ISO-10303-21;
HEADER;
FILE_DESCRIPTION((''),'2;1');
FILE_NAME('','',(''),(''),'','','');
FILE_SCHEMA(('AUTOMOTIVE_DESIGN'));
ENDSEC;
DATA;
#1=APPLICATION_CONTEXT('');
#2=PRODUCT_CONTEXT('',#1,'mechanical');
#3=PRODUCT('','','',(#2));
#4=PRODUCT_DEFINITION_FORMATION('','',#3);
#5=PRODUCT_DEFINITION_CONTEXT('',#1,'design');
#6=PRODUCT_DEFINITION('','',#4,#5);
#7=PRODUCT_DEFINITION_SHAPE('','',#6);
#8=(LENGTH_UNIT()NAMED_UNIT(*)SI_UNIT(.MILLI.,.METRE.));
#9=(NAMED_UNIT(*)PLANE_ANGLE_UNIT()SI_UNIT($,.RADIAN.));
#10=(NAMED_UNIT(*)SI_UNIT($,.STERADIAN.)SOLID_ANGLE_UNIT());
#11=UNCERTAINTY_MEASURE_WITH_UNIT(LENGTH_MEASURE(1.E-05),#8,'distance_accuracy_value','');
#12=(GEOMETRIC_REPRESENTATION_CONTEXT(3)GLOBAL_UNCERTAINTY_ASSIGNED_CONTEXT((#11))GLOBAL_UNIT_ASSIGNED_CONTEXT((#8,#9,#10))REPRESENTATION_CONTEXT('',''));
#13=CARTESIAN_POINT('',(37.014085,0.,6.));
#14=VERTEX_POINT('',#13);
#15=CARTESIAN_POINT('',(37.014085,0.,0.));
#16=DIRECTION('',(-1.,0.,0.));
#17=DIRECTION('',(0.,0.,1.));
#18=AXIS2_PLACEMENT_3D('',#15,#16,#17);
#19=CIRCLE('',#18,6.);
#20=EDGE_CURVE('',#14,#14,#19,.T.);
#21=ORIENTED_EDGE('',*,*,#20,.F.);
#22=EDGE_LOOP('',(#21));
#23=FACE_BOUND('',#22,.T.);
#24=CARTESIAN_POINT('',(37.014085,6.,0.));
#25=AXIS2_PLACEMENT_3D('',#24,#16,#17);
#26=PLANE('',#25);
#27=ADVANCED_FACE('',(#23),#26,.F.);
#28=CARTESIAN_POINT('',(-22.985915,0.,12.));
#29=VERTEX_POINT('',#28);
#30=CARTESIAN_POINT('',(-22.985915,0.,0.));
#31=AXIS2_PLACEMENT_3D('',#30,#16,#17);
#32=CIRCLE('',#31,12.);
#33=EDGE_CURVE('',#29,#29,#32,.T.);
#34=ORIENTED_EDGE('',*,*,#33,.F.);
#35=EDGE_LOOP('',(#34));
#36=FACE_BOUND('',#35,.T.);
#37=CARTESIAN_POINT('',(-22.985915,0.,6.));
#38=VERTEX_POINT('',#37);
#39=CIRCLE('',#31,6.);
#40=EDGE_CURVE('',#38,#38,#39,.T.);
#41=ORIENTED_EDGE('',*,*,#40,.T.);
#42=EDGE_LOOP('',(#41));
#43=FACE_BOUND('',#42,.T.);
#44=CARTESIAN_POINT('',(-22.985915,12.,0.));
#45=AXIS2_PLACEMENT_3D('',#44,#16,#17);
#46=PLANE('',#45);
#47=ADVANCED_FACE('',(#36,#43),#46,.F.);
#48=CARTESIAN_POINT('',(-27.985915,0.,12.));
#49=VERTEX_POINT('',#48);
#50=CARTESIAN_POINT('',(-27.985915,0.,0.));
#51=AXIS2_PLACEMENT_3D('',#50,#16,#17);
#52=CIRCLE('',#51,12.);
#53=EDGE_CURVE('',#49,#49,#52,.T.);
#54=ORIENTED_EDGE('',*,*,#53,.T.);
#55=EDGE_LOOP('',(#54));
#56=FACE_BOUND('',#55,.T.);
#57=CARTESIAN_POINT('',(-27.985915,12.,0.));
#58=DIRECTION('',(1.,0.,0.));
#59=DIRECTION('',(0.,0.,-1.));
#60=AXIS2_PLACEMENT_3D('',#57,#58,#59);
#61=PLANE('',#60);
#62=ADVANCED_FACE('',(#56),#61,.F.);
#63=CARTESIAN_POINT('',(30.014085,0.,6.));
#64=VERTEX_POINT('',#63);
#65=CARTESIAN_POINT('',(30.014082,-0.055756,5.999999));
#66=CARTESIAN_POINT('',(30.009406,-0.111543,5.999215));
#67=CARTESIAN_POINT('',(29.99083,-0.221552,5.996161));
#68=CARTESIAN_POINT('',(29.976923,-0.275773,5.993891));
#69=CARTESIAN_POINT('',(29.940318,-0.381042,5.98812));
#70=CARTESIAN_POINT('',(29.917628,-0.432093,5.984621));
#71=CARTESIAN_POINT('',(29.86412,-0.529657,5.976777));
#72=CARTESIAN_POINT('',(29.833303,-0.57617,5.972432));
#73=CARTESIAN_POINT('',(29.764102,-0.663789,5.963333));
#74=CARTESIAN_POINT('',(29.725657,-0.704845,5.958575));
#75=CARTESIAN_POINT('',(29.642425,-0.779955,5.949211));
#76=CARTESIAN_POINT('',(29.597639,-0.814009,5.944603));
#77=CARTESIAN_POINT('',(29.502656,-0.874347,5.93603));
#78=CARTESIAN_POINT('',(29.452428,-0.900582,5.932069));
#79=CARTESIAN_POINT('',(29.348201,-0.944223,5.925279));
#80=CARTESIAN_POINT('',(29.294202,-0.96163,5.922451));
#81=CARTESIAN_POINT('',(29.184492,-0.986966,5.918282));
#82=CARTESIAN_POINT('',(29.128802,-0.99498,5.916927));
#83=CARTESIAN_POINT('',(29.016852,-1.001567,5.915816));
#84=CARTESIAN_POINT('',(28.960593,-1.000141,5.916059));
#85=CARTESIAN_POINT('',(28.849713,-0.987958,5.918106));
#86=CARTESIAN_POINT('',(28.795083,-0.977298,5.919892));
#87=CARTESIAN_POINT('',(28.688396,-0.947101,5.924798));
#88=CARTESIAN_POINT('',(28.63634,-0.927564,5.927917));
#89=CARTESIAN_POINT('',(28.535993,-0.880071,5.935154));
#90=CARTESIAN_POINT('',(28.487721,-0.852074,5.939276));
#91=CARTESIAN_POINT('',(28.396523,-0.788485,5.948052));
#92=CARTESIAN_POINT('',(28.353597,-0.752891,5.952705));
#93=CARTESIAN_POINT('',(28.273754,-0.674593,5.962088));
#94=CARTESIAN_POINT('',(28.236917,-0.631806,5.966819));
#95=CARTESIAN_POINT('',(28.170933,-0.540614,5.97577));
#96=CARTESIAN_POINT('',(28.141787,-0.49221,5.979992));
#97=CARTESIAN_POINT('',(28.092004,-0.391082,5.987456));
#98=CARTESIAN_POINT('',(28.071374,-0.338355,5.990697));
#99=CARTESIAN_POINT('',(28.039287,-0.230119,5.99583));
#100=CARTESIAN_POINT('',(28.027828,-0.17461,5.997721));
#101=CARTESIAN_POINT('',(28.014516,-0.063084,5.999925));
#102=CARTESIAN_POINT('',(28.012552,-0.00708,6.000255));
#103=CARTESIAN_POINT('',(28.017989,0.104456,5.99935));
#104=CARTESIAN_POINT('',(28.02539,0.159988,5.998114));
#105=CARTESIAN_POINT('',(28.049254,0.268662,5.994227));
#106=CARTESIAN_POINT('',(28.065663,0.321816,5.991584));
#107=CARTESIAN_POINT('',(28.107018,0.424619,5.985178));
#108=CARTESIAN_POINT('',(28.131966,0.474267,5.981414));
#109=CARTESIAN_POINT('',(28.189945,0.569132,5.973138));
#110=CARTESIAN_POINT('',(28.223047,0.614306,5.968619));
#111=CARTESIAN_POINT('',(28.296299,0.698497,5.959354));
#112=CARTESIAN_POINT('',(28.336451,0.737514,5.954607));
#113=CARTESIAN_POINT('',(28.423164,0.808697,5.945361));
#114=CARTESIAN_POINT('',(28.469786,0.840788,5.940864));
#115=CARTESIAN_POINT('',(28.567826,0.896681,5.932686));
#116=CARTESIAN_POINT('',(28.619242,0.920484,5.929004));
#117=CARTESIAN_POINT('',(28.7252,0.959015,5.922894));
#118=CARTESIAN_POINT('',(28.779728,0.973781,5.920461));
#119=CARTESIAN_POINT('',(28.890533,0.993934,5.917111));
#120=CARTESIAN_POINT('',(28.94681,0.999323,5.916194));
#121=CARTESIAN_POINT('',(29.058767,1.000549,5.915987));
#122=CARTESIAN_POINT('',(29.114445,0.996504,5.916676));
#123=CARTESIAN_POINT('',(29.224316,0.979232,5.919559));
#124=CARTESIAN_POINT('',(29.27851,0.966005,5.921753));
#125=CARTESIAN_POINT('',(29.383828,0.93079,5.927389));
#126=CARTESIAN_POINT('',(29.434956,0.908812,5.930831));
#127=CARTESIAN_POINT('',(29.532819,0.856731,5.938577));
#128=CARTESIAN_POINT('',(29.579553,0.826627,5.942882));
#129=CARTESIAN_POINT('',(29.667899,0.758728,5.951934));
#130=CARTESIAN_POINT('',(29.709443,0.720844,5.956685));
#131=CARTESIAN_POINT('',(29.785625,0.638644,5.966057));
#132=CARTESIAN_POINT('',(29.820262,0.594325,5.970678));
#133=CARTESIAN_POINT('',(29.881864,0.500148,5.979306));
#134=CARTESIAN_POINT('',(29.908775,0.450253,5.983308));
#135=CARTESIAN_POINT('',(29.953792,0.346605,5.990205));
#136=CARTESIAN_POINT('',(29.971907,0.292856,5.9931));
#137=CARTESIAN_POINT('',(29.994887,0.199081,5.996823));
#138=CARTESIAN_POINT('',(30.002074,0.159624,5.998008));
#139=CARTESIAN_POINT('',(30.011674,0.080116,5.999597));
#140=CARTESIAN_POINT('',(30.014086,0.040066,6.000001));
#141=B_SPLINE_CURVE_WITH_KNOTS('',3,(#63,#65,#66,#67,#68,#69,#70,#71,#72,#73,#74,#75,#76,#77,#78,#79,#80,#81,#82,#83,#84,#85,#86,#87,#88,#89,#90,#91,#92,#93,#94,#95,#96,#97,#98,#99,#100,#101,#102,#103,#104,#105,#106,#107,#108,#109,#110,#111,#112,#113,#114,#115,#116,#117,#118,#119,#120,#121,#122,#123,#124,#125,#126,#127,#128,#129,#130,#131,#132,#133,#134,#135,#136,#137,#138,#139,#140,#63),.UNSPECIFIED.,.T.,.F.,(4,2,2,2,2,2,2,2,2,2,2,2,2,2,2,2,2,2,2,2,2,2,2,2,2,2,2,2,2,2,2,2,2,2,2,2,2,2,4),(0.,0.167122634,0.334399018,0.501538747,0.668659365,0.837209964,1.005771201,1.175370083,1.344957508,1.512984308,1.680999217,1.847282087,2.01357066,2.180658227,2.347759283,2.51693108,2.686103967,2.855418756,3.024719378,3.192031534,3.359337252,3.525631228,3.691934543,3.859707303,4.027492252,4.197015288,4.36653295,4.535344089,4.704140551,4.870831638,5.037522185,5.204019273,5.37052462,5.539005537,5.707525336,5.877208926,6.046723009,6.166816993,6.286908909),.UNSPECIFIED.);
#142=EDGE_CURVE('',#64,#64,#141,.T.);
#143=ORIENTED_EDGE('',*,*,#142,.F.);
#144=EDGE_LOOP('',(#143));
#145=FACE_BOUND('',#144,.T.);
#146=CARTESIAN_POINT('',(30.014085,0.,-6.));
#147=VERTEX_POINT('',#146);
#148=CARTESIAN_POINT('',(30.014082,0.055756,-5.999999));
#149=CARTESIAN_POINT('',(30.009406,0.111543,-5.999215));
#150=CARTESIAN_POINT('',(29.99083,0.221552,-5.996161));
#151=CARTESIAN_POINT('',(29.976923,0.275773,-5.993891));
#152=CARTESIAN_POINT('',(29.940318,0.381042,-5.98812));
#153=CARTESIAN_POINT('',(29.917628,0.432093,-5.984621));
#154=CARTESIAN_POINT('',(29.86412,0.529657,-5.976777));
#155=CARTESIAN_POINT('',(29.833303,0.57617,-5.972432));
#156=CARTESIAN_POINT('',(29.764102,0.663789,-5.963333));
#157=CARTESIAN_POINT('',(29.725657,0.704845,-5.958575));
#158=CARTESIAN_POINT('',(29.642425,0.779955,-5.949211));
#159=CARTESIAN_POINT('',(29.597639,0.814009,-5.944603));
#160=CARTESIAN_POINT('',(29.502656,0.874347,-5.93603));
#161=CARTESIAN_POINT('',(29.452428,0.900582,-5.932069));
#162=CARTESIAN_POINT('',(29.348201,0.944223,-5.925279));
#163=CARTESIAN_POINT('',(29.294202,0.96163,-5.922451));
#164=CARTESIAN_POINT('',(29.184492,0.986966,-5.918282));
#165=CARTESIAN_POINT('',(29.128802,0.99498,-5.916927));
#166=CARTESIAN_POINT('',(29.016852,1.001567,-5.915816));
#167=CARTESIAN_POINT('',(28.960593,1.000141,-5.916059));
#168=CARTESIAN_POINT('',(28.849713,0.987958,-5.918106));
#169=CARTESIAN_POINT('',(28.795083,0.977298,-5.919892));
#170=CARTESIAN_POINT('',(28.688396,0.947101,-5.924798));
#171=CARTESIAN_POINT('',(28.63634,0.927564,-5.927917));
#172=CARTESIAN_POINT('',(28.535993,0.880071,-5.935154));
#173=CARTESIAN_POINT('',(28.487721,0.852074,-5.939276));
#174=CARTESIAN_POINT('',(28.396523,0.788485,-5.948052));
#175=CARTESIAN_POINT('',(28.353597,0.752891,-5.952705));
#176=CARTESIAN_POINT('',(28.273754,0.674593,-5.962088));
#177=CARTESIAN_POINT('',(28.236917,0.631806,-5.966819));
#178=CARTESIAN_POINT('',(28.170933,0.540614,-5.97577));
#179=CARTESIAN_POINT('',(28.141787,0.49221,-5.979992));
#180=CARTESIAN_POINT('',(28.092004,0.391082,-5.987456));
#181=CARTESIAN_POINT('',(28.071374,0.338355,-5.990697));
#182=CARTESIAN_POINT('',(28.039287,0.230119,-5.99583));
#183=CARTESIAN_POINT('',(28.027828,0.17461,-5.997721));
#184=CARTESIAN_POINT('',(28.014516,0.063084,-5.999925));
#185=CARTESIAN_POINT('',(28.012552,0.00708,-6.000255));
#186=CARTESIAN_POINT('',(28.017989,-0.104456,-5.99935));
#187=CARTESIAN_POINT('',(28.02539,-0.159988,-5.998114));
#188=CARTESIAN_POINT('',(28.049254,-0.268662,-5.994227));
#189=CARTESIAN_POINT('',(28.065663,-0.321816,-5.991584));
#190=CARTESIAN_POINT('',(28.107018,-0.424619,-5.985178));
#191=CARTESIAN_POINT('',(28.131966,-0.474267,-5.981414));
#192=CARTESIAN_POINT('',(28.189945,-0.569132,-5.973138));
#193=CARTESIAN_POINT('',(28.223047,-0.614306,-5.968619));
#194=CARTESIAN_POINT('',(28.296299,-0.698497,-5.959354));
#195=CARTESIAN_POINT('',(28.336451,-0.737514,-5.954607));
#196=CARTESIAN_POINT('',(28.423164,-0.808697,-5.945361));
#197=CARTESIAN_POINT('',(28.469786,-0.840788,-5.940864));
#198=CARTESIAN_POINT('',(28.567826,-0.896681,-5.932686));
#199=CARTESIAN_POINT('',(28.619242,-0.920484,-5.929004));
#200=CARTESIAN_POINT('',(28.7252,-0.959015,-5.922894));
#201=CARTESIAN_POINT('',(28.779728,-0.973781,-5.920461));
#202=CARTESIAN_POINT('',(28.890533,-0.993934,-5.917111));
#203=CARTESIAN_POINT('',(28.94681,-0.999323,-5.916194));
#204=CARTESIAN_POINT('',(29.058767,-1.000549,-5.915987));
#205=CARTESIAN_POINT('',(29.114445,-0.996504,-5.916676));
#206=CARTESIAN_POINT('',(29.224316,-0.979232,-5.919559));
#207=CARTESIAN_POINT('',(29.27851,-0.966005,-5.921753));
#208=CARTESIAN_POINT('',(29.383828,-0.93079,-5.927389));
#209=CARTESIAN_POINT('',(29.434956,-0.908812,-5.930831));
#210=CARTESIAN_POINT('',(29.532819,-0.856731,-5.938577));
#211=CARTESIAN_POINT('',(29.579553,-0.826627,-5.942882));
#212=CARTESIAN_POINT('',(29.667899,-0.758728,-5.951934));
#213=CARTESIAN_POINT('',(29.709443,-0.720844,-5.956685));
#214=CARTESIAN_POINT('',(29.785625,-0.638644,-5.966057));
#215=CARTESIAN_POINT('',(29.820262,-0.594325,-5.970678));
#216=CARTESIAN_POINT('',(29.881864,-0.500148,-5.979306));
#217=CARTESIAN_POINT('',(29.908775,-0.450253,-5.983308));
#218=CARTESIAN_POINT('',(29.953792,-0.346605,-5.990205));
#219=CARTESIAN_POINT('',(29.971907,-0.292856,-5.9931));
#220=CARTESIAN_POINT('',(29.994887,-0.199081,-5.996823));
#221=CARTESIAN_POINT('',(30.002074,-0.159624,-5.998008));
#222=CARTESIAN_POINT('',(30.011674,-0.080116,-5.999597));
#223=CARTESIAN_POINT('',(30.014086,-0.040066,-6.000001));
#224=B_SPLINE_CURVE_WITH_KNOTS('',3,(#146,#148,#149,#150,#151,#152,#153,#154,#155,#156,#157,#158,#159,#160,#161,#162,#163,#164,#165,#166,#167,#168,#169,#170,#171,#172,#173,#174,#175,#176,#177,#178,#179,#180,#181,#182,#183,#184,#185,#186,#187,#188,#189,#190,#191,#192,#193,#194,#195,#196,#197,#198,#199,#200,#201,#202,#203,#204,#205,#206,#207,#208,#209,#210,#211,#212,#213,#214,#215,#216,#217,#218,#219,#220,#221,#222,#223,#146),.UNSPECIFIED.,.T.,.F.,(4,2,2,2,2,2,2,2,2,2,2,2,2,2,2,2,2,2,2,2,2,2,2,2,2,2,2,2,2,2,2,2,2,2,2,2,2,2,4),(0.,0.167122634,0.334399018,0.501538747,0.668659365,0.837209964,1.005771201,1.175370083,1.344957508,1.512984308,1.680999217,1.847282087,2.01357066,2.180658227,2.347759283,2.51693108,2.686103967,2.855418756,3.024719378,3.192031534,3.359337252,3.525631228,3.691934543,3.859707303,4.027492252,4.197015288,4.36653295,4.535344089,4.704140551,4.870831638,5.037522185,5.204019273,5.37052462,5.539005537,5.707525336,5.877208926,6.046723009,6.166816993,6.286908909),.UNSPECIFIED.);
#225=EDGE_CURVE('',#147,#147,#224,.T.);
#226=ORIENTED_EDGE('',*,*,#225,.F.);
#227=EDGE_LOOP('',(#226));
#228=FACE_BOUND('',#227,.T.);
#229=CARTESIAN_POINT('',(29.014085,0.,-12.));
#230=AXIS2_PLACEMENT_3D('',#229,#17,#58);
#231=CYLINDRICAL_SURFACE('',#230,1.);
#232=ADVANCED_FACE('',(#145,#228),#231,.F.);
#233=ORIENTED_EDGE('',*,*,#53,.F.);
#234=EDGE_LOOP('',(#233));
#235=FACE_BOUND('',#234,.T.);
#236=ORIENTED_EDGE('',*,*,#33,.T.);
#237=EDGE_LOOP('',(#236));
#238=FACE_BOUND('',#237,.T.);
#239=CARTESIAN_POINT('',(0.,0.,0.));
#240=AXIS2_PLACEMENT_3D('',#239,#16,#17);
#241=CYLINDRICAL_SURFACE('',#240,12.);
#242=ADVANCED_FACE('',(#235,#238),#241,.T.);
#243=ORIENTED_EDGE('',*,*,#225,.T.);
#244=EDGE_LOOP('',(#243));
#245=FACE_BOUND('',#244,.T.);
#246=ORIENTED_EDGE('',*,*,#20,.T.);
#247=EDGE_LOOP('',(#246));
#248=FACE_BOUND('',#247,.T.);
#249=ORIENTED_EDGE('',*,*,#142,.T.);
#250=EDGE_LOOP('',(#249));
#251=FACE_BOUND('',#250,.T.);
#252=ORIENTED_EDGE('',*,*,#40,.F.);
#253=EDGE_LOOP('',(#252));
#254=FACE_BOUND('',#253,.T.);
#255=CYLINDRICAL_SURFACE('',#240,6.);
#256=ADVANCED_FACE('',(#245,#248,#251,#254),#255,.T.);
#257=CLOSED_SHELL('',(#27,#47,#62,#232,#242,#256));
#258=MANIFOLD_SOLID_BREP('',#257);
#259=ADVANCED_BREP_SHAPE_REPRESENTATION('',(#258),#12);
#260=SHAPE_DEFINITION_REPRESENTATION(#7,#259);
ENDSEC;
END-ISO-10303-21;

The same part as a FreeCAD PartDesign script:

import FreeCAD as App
import Part
import Sketcher
Q = App.Units.Quantity


def add_polygon(sketch, points):
    """Adds a closed chain of lines whose ends are joined by coincident constraints."""
    first, n = sketch.GeometryCount, len(points)
    for a, b in zip(points, points[1:] + points[:1]):
        sketch.addGeometry(Part.LineSegment(App.Vector(*a, 0), App.Vector(*b, 0)), False)
    for i in range(n):
        sketch.addConstraint(Sketcher.Constraint("Coincident", first + i, 2, first + (i + 1) % n, 1))

doc = App.newDocument("Part")
body = doc.addObject("PartDesign::Body", "Body")

# Sketch on XY plane
sketch1 = body.newObject("Sketcher::SketchObject", "Sketch")
sketch1.AttachmentSupport = (doc.getObject("XY_Plane"), [""])
sketch1.MapMode = "FlatFace"
add_polygon(sketch1, [(-28, 12), (-28, 0), (37, 0), (37, 6), (-23, 6), (-23, 12)])  # lines 0-5
sketch1.addConstraint([
    Sketcher.Constraint("Vertical", 0),
    Sketcher.Constraint("Horizontal", 1),
    Sketcher.Constraint("Vertical", 2),
    Sketcher.Constraint("Horizontal", 3),
    Sketcher.Constraint("Vertical", 4),
    Sketcher.Constraint("Horizontal", 5),
    Sketcher.Constraint("PointOnObject", 0, 2, -1),
    Sketcher.Constraint("Equal", 2, 4),
    Sketcher.Constraint("DistanceX", 1, 1, 1, 2, Q("65 mm")),
    Sketcher.Constraint("DistanceX", 3, 2, 3, 1, Q("60 mm")),
    Sketcher.Constraint("DistanceY", 0, 2, 0, 1, Q("12 mm")),
    Sketcher.Constraint("DistanceX", 0, 2, -1, 1, Q("27.985915 mm")),
])
revolution = body.newObject("PartDesign::Revolution", "Revolution")
revolution.Profile = sketch1
revolution.ReferenceAxis = (sketch1, ["H_Axis"])
revolution.Angle = 360

# Sketch on XY plane
sketch2 = body.newObject("Sketcher::SketchObject", "Sketch001")
sketch2.AttachmentSupport = (doc.getObject("XY_Plane"), [""])
sketch2.MapMode = "FlatFace"
sketch2.addGeometry(Part.Circle(App.Vector(29, 0, 0), App.Vector(0, 0, 1), 1), False)
sketch2.addConstraint([
    Sketcher.Constraint("PointOnObject", 0, 3, -1),
    Sketcher.Constraint("Diameter", 0, Q("2 mm")),
    Sketcher.Constraint("DistanceX", -1, 1, 0, 3, Q("29.014085 mm")),
])
pocket1 = body.newObject("PartDesign::Pocket", "Pocket")
pocket1.Profile = sketch2
pocket1.Type = "ThroughAll"
pocket1.Midplane = True

doc.recompute()
